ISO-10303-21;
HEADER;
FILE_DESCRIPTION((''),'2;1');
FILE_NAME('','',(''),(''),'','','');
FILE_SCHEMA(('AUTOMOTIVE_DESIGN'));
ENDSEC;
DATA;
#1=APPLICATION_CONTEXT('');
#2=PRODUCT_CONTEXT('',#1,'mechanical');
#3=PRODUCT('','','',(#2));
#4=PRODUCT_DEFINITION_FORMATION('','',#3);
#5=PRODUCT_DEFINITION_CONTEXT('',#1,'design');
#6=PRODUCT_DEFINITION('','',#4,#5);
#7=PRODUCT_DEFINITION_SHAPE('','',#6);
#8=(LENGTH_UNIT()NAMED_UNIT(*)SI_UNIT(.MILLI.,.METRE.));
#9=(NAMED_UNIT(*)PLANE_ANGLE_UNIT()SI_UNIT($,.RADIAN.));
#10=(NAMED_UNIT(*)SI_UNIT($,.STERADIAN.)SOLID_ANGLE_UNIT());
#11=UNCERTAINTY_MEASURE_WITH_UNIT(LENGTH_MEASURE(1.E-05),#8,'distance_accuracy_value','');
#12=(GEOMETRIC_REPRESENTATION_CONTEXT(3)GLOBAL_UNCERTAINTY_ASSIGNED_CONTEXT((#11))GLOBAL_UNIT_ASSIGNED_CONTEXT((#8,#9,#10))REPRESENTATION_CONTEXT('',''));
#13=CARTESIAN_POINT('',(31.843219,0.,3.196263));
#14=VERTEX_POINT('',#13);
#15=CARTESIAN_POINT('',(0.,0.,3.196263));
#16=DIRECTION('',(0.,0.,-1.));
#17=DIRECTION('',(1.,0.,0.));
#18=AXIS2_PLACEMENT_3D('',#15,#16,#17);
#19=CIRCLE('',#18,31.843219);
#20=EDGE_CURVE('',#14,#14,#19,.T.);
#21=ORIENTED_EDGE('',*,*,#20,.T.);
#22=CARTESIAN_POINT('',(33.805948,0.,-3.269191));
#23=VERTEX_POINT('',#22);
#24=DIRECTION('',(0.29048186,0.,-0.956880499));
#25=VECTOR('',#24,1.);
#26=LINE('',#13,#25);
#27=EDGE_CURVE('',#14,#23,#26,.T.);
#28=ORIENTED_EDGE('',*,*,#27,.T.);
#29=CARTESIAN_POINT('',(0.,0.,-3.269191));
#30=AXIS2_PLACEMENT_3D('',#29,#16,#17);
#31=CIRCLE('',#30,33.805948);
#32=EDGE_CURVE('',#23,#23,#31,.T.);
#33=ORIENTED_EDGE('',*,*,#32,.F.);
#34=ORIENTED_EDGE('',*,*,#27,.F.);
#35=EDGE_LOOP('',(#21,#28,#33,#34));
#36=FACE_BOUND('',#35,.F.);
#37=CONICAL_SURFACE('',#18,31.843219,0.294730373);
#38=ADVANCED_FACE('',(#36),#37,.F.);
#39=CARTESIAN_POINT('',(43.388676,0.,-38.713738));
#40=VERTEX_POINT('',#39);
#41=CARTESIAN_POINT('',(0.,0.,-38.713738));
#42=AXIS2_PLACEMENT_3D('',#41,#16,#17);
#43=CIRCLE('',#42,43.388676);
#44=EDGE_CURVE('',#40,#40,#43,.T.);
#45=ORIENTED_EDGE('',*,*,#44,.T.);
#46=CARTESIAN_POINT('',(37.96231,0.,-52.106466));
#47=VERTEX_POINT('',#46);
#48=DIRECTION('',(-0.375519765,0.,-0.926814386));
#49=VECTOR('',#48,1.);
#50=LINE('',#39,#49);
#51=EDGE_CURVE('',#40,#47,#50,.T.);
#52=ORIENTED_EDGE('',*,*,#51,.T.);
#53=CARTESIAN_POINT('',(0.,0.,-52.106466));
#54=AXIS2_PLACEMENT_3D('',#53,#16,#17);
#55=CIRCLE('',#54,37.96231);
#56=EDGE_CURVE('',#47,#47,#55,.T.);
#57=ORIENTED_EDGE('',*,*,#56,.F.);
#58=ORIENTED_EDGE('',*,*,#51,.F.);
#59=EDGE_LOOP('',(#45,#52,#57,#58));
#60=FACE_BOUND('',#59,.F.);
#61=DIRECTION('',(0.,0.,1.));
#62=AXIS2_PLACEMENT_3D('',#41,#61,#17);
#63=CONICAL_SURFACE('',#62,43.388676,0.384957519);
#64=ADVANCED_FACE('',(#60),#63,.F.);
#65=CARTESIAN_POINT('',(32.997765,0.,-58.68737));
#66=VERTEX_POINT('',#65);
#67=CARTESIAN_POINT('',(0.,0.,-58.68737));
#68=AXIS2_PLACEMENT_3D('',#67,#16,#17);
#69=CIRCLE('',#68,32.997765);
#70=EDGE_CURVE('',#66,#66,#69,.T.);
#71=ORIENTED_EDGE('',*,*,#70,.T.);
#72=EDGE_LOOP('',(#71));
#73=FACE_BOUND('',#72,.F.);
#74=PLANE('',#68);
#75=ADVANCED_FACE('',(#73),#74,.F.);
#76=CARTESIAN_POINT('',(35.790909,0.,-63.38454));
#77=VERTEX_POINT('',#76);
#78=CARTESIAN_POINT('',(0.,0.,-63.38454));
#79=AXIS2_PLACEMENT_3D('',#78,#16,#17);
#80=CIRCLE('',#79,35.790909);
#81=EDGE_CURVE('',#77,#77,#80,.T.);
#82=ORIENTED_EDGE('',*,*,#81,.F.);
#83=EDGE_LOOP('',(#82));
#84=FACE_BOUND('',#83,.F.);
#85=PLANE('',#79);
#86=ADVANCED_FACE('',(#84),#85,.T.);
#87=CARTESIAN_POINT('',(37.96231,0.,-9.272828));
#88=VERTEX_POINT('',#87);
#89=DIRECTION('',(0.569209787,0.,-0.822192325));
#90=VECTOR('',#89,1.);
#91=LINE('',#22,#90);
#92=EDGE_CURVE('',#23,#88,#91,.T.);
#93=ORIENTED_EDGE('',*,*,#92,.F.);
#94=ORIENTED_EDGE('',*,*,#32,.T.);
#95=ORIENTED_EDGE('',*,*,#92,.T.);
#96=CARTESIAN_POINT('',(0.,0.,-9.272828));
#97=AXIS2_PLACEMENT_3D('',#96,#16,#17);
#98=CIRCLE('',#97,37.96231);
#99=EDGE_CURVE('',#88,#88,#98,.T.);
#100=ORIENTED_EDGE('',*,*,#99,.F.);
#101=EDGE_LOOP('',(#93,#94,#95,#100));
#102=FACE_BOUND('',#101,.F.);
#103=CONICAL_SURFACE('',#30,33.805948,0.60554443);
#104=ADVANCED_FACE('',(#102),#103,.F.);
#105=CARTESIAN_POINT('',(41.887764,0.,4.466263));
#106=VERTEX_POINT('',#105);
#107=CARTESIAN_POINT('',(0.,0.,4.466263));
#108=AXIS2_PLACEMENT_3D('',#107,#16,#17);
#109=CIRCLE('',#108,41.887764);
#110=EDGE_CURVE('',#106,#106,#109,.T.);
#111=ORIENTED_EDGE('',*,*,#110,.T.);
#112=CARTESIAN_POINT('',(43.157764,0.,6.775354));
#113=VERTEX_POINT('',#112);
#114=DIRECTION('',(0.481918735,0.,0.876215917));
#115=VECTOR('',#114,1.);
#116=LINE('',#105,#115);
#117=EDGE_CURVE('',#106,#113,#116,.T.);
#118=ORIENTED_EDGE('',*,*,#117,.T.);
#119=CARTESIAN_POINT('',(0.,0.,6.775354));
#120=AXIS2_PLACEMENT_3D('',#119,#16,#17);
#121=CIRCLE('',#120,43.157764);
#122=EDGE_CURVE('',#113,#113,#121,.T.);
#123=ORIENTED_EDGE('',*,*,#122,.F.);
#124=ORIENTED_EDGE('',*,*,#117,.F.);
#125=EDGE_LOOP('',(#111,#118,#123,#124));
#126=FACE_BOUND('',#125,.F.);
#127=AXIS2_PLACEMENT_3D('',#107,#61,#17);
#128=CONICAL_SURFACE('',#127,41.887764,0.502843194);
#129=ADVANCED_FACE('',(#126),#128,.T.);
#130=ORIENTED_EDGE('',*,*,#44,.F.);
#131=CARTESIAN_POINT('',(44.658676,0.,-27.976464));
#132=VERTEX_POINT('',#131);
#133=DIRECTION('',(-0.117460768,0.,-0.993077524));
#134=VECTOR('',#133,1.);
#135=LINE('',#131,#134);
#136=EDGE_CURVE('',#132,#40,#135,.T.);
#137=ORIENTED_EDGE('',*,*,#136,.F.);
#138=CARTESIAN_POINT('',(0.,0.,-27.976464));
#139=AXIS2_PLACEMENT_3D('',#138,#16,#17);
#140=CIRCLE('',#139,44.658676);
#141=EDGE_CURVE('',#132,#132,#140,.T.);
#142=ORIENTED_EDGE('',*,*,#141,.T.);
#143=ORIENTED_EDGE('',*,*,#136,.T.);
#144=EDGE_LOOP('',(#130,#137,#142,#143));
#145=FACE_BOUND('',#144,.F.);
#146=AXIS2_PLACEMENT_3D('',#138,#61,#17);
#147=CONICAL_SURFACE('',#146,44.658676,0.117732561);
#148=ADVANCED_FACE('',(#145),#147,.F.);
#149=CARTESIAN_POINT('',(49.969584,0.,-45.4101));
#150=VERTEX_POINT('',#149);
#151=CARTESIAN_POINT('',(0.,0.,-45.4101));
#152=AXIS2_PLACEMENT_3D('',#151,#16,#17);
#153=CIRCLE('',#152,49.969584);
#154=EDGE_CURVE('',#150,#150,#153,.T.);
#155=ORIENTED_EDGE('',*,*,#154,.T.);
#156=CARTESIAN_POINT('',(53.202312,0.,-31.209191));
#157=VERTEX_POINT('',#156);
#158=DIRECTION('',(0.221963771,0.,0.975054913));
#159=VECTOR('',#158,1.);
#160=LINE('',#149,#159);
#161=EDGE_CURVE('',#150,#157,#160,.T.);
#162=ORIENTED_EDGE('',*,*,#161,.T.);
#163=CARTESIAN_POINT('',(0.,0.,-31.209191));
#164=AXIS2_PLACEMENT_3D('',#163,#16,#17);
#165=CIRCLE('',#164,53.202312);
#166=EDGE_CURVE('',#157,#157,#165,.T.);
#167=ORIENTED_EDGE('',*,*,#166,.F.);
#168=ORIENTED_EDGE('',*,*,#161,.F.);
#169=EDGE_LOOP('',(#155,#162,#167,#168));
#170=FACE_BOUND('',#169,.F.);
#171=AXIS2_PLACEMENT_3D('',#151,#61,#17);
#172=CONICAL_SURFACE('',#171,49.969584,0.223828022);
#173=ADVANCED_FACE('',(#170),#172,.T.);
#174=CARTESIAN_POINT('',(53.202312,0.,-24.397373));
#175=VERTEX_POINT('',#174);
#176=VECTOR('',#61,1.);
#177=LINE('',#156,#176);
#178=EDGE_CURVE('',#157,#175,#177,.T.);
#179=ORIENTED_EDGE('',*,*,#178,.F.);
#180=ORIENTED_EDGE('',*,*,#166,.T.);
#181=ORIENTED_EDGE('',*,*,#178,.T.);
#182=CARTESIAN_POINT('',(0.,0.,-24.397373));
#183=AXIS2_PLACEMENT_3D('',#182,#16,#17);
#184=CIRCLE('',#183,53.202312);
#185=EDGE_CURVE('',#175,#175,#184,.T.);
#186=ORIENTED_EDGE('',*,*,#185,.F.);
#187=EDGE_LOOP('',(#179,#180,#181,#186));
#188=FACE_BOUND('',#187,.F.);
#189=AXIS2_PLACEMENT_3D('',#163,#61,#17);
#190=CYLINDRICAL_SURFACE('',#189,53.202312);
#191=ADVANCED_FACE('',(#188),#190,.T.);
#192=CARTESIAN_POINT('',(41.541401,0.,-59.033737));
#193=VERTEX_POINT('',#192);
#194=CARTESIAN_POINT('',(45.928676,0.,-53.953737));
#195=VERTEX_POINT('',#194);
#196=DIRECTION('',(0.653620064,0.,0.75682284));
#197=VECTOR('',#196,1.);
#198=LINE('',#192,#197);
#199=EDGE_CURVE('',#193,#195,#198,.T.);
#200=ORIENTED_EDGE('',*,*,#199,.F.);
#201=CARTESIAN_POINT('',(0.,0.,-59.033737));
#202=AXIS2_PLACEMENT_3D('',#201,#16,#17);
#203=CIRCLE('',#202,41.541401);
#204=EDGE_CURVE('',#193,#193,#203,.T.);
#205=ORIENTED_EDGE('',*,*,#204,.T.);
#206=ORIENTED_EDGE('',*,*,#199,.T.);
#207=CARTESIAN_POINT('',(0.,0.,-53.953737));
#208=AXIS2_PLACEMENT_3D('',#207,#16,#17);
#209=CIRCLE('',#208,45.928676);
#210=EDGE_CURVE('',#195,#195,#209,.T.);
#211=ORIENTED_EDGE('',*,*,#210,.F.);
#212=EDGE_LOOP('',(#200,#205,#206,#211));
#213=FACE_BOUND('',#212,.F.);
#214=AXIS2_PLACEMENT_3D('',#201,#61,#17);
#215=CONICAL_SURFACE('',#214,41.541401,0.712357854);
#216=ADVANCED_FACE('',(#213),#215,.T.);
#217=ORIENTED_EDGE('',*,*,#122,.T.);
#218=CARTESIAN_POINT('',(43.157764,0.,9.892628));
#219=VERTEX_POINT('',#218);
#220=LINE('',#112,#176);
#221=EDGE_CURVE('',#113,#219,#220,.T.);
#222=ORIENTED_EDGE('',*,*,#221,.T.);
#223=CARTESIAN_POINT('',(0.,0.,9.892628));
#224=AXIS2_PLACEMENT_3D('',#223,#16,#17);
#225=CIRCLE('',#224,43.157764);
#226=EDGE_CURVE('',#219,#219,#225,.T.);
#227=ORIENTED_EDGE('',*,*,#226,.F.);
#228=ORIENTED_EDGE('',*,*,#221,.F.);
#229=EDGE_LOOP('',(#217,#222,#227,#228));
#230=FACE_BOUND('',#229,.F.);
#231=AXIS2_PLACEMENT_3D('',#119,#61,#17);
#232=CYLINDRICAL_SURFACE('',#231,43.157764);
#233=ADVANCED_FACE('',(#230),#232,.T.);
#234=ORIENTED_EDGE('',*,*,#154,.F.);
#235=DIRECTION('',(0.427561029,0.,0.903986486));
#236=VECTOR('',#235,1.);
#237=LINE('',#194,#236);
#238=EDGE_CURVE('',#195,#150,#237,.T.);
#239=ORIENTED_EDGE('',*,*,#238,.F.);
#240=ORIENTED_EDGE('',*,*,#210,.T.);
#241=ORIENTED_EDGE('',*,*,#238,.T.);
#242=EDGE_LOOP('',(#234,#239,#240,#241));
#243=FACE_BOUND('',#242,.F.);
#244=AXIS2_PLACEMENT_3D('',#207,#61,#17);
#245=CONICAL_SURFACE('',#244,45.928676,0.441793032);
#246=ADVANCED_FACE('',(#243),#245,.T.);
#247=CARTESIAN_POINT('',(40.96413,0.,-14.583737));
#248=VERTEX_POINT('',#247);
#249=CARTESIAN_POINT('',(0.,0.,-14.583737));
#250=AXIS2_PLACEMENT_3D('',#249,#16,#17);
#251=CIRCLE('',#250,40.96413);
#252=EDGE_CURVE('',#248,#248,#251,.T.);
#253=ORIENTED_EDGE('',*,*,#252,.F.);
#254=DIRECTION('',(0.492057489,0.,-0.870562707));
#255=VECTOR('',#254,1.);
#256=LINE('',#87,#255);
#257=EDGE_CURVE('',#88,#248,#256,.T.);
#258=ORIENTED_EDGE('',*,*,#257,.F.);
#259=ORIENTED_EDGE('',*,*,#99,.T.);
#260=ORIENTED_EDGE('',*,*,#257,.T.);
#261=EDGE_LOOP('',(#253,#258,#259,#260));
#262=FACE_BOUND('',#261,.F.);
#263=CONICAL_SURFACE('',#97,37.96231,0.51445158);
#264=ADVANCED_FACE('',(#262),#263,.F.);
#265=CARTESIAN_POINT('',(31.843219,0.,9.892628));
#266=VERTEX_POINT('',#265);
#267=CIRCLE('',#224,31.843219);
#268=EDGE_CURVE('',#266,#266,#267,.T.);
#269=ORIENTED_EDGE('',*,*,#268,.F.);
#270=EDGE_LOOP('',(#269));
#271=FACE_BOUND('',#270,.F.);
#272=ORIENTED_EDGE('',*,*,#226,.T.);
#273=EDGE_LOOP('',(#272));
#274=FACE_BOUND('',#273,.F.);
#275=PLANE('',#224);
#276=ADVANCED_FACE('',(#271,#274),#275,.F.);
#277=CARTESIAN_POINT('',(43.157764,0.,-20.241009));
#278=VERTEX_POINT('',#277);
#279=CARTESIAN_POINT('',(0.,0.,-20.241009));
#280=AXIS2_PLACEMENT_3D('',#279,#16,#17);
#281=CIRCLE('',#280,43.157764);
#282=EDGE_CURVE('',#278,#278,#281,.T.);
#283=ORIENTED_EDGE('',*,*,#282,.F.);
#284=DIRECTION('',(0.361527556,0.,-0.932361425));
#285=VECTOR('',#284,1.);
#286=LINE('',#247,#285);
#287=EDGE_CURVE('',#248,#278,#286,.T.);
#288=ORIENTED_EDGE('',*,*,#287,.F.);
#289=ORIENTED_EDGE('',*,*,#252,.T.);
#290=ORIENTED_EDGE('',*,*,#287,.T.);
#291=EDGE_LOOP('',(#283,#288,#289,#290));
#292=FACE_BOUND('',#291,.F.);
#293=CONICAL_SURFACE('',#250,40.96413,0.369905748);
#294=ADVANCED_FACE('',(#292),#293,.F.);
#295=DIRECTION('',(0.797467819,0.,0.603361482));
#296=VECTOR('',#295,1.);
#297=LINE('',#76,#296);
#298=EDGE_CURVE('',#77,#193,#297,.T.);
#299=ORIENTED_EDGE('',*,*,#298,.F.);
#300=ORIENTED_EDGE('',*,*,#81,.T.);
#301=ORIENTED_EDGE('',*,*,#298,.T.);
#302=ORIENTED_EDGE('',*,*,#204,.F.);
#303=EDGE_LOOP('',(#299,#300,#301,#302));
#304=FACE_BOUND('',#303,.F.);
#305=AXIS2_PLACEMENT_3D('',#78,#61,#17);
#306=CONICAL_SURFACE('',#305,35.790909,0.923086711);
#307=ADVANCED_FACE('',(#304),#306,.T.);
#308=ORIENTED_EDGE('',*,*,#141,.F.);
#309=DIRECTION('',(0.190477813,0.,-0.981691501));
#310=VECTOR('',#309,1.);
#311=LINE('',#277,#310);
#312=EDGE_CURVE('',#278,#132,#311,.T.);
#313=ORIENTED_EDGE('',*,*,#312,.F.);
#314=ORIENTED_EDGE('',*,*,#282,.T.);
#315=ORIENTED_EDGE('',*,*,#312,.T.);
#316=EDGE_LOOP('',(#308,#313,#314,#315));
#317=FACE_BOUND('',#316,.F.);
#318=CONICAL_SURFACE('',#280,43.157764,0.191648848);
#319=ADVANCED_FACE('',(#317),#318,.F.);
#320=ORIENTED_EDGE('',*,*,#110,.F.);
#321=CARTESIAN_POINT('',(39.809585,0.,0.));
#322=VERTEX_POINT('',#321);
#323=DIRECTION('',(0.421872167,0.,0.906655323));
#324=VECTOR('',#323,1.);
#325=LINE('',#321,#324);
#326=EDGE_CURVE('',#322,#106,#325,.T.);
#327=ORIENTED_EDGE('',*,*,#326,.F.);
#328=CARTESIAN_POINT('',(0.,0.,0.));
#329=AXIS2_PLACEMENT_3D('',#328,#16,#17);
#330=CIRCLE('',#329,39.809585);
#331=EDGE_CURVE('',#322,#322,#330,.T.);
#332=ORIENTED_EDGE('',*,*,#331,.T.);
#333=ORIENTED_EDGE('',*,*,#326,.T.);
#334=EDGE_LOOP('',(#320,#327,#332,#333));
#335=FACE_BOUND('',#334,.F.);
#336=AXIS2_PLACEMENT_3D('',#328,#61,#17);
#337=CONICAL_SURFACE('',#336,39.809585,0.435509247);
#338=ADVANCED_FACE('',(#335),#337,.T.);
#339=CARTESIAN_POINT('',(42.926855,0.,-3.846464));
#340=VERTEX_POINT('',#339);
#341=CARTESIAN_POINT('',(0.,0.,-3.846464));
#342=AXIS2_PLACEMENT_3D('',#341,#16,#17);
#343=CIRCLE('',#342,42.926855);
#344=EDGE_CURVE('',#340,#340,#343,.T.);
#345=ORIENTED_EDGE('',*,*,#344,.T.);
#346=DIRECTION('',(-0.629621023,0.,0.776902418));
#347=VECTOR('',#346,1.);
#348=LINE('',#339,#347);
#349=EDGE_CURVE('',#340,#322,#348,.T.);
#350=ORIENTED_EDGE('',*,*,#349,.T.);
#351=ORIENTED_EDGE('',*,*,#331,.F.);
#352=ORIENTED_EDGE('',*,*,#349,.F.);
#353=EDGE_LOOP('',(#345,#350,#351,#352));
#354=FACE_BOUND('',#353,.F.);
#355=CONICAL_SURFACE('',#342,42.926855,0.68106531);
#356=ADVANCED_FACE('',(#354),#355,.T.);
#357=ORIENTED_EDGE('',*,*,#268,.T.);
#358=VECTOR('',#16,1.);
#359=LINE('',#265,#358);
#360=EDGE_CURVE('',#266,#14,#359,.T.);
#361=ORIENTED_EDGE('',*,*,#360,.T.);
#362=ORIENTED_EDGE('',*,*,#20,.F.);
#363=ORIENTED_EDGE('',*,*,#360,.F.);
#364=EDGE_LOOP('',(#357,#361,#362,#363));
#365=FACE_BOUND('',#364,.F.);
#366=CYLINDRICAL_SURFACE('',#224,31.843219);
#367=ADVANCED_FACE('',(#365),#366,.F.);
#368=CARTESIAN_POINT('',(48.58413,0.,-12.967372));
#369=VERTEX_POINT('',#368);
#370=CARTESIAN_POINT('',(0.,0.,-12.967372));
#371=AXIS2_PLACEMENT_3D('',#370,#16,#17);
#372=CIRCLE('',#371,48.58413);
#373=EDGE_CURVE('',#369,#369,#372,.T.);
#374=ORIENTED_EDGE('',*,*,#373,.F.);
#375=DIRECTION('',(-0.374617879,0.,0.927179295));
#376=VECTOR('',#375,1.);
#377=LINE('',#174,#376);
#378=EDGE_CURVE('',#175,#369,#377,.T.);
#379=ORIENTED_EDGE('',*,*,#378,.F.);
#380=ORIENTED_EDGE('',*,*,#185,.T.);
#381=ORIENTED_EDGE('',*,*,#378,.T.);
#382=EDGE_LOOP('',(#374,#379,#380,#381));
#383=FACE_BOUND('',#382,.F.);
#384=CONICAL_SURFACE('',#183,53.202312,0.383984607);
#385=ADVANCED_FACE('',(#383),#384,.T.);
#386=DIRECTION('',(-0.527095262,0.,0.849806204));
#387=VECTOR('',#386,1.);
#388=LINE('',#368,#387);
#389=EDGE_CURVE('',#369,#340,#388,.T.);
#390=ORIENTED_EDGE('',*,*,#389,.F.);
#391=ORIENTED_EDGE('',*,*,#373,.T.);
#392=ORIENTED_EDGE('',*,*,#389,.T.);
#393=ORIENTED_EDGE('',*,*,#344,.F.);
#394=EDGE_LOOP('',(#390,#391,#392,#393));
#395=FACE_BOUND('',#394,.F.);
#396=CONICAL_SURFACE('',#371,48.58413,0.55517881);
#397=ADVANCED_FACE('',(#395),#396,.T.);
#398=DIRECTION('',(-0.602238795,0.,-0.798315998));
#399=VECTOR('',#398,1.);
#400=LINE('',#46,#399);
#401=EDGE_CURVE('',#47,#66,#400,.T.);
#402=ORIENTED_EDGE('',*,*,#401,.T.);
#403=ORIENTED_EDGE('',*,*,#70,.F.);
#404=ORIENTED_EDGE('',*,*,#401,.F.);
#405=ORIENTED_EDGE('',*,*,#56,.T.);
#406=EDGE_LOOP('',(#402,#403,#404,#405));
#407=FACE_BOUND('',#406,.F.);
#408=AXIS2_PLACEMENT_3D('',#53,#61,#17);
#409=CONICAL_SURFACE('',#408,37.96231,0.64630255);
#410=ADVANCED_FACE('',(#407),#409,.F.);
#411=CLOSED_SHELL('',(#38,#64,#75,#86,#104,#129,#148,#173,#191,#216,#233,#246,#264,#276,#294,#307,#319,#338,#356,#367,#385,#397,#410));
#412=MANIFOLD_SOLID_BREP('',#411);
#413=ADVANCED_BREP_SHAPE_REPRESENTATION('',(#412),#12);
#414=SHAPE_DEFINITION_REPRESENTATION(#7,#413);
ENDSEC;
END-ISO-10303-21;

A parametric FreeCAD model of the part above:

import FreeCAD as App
import Part
import Sketcher

V = App.Vector


def add_polygon(sketch, points):
    """Adds a closed chain of lines whose ends are joined by coincident constraints."""
    first, n = sketch.GeometryCount, len(points)
    for a, b in zip(points, points[1:] + points[:1]):
        sketch.addGeometry(Part.LineSegment(App.Vector(*a, 0), App.Vector(*b, 0)), False)
    for i in range(n):
        sketch.addConstraint(Sketcher.Constraint("Coincident", first + i, 2, first + (i + 1) % n, 1))

doc = App.newDocument("Part")
body = doc.addObject("PartDesign::Body", "Body")

sketch1 = body.newObject("Sketcher::SketchObject", "Sketch")
sketch1.AttachmentSupport = (doc.getObject("XZ_Plane"), [""])
sketch1.MapMode = "FlatFace"
add_polygon(sketch1, [(32.997765, -58.68737), (0, -58.68737), (0, -63.38454), (35.790909, -63.38454), (41.541401, -59.033737), (45.928676, -53.953737), (49.969584, -45.4101), (53.202312, -31.209191), (53.202312, -24.397373), (48.58413, -12.967372), (42.926855, -3.846464), (39.809585, 0), (41.887764, 4.466263), (43.157764, 6.775354), (43.157764, 9.892628), (31.843219, 9.892628), (31.843219, 3.196263), (33.805948, -3.269191), (37.96231, -9.272828), (40.96413, -14.583737), (43.157764, -20.241009), (44.658676, -27.976464), (43.388676, -38.713738), (37.96231, -52.106466)])
sketch1.addConstraint(Sketcher.Constraint("Horizontal", 0))
sketch1.addConstraint(Sketcher.Constraint("Vertical", 1))
sketch1.addConstraint(Sketcher.Constraint("Horizontal", 2))
sketch1.addConstraint(Sketcher.Constraint("Vertical", 7))
sketch1.addConstraint(Sketcher.Constraint("Vertical", 13))
sketch1.addConstraint(Sketcher.Constraint("Horizontal", 14))
sketch1.addConstraint(Sketcher.Constraint("Vertical", 15))
sketch1.addConstraint(Sketcher.Constraint("PointOnObject", 0, 2, -2))
sketch1.addConstraint(Sketcher.Constraint("PointOnObject", 10, 2, -1))
sketch1.addConstraint(Sketcher.Constraint("Vertical", 13, 2, 19, 2))
sketch1.addConstraint(Sketcher.Constraint("Vertical", 17, 2, 22, 2))
sketch1.addConstraint(Sketcher.Constraint("DistanceY", 3, 2, 4, 2, 5.08))
sketch1.addConstraint(Sketcher.Constraint("DistanceY", 7, 2, 8, 2, 11.430001))
sketch1.addConstraint(Sketcher.Constraint("DistanceX", 10, 2, 5, 2, 10.159999))
sketch1.addConstraint(Sketcher.Constraint("DistanceX", 11, 2, 12, 2, 1.27))
sketch1.addConstraint(Sketcher.Constraint("DistanceY", 8, 2, 13, 2, 22.86))
sketch1.addConstraint(Sketcher.Constraint("DistanceY", 15, 2, 11, 2, 1.27))
sketch1.addConstraint(Sketcher.Constraint("DistanceX", 18, 2, 8, 2, 7.62))
sketch1.addConstraint(Sketcher.Constraint("DistanceX", 21, 2, 20, 2, 1.27))
sketch1.addConstraint(Sketcher.Constraint("DistanceX", 21, 2, 4, 2, 2.54))
sketch1.addConstraint(Sketcher.Constraint("DistanceY", 4, 2, 21, 2, 15.239999))
sketch1.addConstraint(Sketcher.Constraint("Distance", 12, 2.635299))
sketch1.addConstraint(Sketcher.Constraint("DistanceX", 2, 1, 2, 2, 35.790909))
sketch1.addConstraint(Sketcher.Constraint("DistanceY", 1, 2, 1, 1, 4.69717))
sketch1.addConstraint(Sketcher.Constraint("DistanceX", -1, 1, 3, 2, 41.541401))
sketch1.addConstraint(Sketcher.Constraint("DistanceY", 5, 2, -1, 1, 45.4101))
sketch1.addConstraint(Sketcher.Constraint("DistanceX", 2, 2, 22, 2, 2.171401))
sketch1.addConstraint(Sketcher.Constraint("Distance", 3, 7.210939))
sketch1.addConstraint(Sketcher.Constraint("Distance", 4, 6.712271))
sketch1.addConstraint(Sketcher.Constraint("Distance", 19, 6.067681))
sketch1.addConstraint(Sketcher.Constraint("Distance", 20, 7.879721))
sketch1.addConstraint(Sketcher.Constraint("Distance", 21, 10.812121))
sketch1.addConstraint(Sketcher.Constraint("Distance", 22, 14.450281))
sketch1.addConstraint(Sketcher.Constraint("DistanceX", 0, 2, 0, 1, 32.997765))
sketch1.addConstraint(Sketcher.Constraint("DistanceX", 14, 2, 14, 1, 11.314545))
sketch1.addConstraint(Sketcher.Constraint("DistanceY", 7, 1, 7, 2, 6.811818))
sketch1.addConstraint(Sketcher.Constraint("DistanceY", 13, 1, 13, 2, 3.117274))
sketch1.addConstraint(Sketcher.Constraint("DistanceY", 0, 2, -1, 1, 58.68737))
sketch1.addConstraint(Sketcher.Constraint("DistanceY", 6, 2, -1, 1, 31.209191))
sketch1.addConstraint(Sketcher.Constraint("DistanceX", -1, 1, 8, 2, 48.58413))
sketch1.addConstraint(Sketcher.Constraint("DistanceX", -1, 1, 14, 2, 31.843219))
sketch1.addConstraint(Sketcher.Constraint("DistanceY", 16, 2, -1, 1, 3.269191))
sketch1.addConstraint(Sketcher.Constraint("DistanceX", 5, 2, 6, 2, 3.232728))
sketch1.addConstraint(Sketcher.Constraint("DistanceX", 3, 2, 6, 2, 11.660911))
sketch1.addConstraint(Sketcher.Constraint("DistanceY", 7, 2, 9, 2, 20.550909))
sketch1.addConstraint(Sketcher.Constraint("DistanceX", 9, 2, 5, 2, 7.042729))
sketch1.addConstraint(Sketcher.Constraint("DistanceX", 15, 2, 16, 2, 1.962729))
sketch1.addConstraint(Sketcher.Constraint("DistanceY", 17, 2, 15, 2, 12.469091))
revolution = body.newObject("PartDesign::Revolution", "Revolution")
revolution.Profile = sketch1
revolution.ReferenceAxis = (sketch1, ["V_Axis"])
revolution.Angle = 360

doc.recompute()
